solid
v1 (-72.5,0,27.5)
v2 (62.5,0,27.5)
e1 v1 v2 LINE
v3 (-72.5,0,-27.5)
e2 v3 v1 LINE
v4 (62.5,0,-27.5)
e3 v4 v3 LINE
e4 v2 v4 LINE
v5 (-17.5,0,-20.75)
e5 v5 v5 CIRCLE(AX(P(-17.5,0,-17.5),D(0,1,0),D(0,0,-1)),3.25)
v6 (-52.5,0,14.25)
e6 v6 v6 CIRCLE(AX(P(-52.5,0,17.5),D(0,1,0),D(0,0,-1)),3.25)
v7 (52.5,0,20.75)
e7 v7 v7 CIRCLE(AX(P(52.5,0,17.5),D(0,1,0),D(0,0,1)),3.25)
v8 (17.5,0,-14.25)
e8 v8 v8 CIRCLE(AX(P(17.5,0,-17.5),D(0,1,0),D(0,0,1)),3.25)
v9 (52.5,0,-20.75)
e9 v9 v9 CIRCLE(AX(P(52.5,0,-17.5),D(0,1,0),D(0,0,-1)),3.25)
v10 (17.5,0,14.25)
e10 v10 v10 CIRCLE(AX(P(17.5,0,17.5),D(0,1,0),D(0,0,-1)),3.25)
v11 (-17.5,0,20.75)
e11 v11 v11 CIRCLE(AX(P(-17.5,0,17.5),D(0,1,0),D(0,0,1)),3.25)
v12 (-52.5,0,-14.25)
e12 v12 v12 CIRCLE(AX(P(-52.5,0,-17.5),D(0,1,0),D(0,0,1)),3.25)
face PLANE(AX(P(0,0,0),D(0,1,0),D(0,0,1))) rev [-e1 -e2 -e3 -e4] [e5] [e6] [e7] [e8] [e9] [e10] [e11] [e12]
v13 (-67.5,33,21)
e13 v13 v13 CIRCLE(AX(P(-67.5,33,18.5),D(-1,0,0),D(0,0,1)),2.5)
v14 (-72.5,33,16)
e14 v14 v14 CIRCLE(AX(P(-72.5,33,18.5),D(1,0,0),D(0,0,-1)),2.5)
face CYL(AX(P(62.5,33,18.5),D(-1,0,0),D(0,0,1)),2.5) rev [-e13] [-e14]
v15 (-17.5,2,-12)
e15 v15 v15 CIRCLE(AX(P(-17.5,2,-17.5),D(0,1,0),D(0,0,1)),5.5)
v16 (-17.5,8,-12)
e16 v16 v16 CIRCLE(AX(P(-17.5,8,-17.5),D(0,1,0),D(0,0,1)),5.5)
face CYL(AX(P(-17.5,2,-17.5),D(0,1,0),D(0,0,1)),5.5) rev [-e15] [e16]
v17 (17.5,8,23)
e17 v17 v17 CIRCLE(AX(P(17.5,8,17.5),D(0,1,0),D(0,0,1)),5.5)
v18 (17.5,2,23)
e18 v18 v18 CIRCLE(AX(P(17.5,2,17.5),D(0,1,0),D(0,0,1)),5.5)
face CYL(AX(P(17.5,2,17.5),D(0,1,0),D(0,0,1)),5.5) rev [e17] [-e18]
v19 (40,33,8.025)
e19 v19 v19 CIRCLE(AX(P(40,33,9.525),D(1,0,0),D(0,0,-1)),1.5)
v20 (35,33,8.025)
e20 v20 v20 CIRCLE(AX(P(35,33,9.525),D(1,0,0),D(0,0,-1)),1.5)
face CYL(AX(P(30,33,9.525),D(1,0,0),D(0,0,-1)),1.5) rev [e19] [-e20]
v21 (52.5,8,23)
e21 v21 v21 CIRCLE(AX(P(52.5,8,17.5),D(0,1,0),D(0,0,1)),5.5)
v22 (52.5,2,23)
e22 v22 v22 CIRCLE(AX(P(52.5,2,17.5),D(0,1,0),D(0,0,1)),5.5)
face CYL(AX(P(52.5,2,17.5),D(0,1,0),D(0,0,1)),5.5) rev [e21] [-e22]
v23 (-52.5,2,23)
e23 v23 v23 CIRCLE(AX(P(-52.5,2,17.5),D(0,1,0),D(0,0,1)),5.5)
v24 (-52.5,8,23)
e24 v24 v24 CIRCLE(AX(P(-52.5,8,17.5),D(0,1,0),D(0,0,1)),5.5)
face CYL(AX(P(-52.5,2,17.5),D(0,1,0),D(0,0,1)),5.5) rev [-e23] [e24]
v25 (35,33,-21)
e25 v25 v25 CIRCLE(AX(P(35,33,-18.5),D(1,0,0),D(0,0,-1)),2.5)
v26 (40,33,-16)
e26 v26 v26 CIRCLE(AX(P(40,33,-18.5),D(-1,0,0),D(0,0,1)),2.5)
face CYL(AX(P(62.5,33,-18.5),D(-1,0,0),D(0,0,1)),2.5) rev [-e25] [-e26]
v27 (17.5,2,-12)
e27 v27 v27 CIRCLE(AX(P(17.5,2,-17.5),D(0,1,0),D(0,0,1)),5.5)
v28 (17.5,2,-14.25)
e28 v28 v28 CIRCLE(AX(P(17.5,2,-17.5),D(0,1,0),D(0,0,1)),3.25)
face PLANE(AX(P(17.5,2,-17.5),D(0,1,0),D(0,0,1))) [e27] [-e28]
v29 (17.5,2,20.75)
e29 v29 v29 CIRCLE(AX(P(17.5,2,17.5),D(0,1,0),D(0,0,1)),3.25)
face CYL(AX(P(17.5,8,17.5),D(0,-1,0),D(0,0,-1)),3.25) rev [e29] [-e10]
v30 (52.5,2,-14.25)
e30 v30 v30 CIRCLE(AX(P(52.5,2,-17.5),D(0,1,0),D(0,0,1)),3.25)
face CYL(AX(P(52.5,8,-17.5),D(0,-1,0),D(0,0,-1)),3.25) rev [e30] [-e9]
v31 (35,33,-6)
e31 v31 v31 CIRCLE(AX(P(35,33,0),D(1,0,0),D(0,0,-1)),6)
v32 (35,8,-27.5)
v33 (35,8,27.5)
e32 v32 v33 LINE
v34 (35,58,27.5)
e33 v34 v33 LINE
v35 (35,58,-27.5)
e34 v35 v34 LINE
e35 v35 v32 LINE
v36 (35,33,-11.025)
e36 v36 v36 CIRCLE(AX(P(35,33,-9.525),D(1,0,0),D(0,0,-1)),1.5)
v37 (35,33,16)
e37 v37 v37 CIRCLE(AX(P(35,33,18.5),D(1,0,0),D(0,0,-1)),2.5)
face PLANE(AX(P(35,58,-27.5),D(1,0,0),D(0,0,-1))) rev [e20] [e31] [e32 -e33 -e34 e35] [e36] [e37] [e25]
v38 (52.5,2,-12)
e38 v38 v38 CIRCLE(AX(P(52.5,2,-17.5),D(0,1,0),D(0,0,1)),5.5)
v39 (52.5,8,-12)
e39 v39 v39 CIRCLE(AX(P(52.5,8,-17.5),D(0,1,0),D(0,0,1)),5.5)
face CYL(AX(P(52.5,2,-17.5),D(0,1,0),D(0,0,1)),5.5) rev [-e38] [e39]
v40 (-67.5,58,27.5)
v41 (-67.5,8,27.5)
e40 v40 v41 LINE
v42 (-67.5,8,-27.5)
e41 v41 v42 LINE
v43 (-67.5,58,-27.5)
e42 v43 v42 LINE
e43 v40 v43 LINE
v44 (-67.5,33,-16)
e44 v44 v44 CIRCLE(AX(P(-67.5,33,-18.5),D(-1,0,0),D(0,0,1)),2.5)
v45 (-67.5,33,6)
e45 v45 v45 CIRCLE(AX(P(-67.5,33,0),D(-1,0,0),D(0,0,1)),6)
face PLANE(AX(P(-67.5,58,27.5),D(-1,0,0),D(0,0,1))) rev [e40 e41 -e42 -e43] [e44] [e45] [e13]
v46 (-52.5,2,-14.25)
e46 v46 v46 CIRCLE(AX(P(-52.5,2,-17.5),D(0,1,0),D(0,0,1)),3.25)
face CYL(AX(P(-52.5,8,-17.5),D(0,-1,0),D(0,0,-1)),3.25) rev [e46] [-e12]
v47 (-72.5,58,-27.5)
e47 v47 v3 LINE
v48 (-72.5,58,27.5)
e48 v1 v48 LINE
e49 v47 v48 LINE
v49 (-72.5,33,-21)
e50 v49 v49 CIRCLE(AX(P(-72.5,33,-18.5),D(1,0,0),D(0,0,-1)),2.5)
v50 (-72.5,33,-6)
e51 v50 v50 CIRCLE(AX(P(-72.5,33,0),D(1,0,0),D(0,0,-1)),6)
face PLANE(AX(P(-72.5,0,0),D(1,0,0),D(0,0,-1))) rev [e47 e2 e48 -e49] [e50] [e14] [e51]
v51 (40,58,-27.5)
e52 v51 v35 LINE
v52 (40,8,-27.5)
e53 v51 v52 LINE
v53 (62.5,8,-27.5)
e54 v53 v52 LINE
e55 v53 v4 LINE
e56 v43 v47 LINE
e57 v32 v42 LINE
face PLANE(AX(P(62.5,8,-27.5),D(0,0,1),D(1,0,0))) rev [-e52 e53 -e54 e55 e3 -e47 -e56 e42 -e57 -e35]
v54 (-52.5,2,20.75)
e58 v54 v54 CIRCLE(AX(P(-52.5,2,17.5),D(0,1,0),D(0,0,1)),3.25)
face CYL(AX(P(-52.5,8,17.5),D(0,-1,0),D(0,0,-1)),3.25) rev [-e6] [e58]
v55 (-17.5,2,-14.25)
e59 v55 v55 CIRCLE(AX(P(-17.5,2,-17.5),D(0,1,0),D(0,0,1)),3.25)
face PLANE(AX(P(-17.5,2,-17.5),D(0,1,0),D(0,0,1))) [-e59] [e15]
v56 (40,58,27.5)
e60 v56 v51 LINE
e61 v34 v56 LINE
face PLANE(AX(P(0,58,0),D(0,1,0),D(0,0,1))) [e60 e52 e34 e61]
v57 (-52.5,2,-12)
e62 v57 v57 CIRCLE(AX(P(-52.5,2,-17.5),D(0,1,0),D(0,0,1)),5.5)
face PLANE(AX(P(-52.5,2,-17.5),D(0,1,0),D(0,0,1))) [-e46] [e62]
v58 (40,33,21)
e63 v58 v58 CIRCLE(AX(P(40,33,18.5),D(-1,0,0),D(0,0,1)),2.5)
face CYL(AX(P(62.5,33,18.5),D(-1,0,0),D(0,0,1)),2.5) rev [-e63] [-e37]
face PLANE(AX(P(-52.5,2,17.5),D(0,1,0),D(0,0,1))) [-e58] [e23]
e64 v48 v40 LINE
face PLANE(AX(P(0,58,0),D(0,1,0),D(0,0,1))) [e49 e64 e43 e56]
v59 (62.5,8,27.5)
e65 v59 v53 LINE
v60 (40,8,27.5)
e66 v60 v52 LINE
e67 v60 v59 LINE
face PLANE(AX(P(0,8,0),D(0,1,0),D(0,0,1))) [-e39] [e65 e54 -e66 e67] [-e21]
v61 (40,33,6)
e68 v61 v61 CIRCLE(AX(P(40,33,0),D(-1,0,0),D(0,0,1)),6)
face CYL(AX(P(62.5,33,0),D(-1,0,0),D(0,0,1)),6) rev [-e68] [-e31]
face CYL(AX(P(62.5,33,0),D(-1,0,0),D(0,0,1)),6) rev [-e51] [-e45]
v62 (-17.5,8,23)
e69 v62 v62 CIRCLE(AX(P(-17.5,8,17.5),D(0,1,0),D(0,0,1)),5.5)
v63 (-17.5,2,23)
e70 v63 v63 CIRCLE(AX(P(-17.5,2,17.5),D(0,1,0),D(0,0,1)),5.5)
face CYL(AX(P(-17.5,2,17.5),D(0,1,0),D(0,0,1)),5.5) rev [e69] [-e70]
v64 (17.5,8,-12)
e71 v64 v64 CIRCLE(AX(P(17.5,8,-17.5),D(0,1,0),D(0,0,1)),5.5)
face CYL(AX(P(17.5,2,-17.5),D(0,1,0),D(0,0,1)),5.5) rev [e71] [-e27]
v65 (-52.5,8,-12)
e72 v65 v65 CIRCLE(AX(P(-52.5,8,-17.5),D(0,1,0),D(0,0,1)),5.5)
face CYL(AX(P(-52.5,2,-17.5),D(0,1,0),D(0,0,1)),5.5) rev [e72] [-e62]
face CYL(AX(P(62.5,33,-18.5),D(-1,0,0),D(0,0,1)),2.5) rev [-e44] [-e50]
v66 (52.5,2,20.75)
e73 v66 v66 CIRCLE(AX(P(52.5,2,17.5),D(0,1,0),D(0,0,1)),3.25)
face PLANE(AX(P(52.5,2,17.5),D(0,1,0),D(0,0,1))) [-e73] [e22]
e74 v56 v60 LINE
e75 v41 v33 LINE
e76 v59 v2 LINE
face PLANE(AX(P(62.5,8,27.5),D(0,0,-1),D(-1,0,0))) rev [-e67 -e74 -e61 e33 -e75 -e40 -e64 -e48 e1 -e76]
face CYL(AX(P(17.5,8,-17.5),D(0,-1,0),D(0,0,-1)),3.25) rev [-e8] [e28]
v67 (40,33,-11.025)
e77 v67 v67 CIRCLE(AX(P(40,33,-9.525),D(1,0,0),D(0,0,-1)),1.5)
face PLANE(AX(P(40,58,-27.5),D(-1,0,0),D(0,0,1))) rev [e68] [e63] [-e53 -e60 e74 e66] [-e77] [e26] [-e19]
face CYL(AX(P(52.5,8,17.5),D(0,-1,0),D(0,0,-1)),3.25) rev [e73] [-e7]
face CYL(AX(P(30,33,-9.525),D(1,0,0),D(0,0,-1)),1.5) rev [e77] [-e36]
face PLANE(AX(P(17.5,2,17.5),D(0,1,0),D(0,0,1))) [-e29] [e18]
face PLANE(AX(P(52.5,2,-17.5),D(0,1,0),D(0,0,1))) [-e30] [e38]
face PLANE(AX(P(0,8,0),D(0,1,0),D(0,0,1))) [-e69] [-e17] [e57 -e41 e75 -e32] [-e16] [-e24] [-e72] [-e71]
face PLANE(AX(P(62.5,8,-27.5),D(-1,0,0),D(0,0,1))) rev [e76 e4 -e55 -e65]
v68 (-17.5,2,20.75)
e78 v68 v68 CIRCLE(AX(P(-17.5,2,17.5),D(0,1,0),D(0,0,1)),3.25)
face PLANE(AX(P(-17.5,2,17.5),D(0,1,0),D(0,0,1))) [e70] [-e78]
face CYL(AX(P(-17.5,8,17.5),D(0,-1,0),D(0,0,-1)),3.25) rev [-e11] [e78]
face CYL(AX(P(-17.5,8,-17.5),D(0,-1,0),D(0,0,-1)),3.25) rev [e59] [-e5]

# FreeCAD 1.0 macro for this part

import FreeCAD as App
import Part
import Sketcher

doc = App.newDocument("Part")
body = doc.addObject("PartDesign::Body", "Body")

sketch1 = body.newObject("Sketcher::SketchObject", "Sketch")
sketch1.AttachmentSupport = (doc.getObject("XZ_Plane"), [""])
sketch1.MapMode = "FlatFace"
sketch1.addGeometry(Part.LineSegment(App.Vector(-62.5, -27.5, 0), App.Vector(-62.5, 27.5, 0)), False)
sketch1.addGeometry(Part.LineSegment(App.Vector(-62.5, 27.5, 0), App.Vector(62.5, 27.5, 0)), False)
sketch1.addGeometry(Part.LineSegment(App.Vector(62.5, 27.5, 0), App.Vector(62.5, -27.5, 0)), False)
sketch1.addGeometry(Part.LineSegment(App.Vector(62.5, -27.5, 0), App.Vector(-62.5, -27.5, 0)), False)
sketch1.addGeometry(Part.Circle(App.Vector(-52.5, 17.5, 0), App.Vector(0, 0, 1), 3.2), False)
sketch1.addGeometry(Part.Circle(App.Vector(-17.5, 17.5, 0), App.Vector(0, 0, 1), 3.2), False)
sketch1.addGeometry(Part.Circle(App.Vector(17.5, 17.5, 0), App.Vector(0, 0, 1), 3.2), False)
sketch1.addGeometry(Part.Circle(App.Vector(52.5, 17.5, 0), App.Vector(0, 0, 1), 3.2), False)
sketch1.addGeometry(Part.Circle(App.Vector(-52.5, -17.5, 0), App.Vector(0, 0, 1), 3.2), False)
sketch1.addGeometry(Part.Circle(App.Vector(-17.5, -17.5, 0), App.Vector(0, 0, 1), 3.2), False)
sketch1.addGeometry(Part.Circle(App.Vector(17.5, -17.5, 0), App.Vector(0, 0, 1), 3.2), False)
sketch1.addGeometry(Part.Circle(App.Vector(52.5, -17.5, 0), App.Vector(0, 0, 1), 3.2), False)
sketch1.addConstraint(Sketcher.Constraint("Coincident", 0, 2, 1, 1))
sketch1.addConstraint(Sketcher.Constraint("Coincident", 1, 2, 2, 1))
sketch1.addConstraint(Sketcher.Constraint("Coincident", 2, 2, 3, 1))
sketch1.addConstraint(Sketcher.Constraint("Coincident", 3, 2, 0, 1))
sketch1.addConstraint(Sketcher.Constraint("Vertical", 0))
sketch1.addConstraint(Sketcher.Constraint("Horizontal", 1))
sketch1.addConstraint(Sketcher.Constraint("Vertical", 2))
sketch1.addConstraint(Sketcher.Constraint("Horizontal", 3))
sketch1.addConstraint(Sketcher.Constraint("Equal", 4, 5))
sketch1.addConstraint(Sketcher.Constraint("Equal", 5, 6))
sketch1.addConstraint(Sketcher.Constraint("Equal", 6, 7))
sketch1.addConstraint(Sketcher.Constraint("Equal", 7, 8))
sketch1.addConstraint(Sketcher.Constraint("Equal", 8, 9))
sketch1.addConstraint(Sketcher.Constraint("Equal", 9, 10))
sketch1.addConstraint(Sketcher.Constraint("Equal", 10, 11))
sketch1.addConstraint(Sketcher.Constraint("Symmetric", 7, 3, 8, 3, -1, 1))
sketch1.addConstraint(Sketcher.Constraint("Symmetric", 6, 3, 9, 3, -1, 1))
sketch1.addConstraint(Sketcher.Constraint("Symmetric", 5, 3, 10, 3, -1, 1))
sketch1.addConstraint(Sketcher.Constraint("Symmetric", 4, 3, 11, 3, -1, 1))
sketch1.addConstraint(Sketcher.Constraint("Symmetric", 0, 2, 2, 2, -1, 1))
sketch1.addConstraint(Sketcher.Constraint("Symmetric", 5, 3, 6, 3, -2))
sketch1.addConstraint(Sketcher.Constraint("Symmetric", 4, 3, 7, 3, -2))
sketch1.addConstraint(Sketcher.Constraint("Horizontal", 4, 3, 5, 3))
sketch1.addConstraint(Sketcher.Constraint("Diameter", 4, 6.5))
sketch1.addConstraint(Sketcher.Constraint("DistanceX", 1, 1, 1, 2, 125.0))
sketch1.addConstraint(Sketcher.Constraint("DistanceY", 0, 1, 0, 2, 55.0))
sketch1.addConstraint(Sketcher.Constraint("DistanceX", 4, 3, 5, 3, 35.0))
sketch1.addConstraint(Sketcher.Constraint("DistanceX", 5, 3, 6, 3, 35.0))
sketch1.addConstraint(Sketcher.Constraint("DistanceY", 8, 3, 4, 3, 35.0))
pad1 = body.newObject("PartDesign::Pad", "Pad")
pad1.Profile = sketch1
pad1.Length = 8
pad1.Reversed = True

sketch2 = body.newObject("Sketcher::SketchObject", "Sketch001")
sketch2.AttachmentSupport = (doc.getObject("XZ_Plane"), [""])
sketch2.MapMode = "FlatFace"
sketch2.AttachmentOffset = App.Placement(App.Vector(0, 0, -8), App.Rotation())
sketch2.addGeometry(Part.Circle(App.Vector(-52, -18, 0), App.Vector(0, 0, 1), 6), False)
sketch2.addGeometry(Part.Circle(App.Vector(-18, -18, 0), App.Vector(0, 0, 1), 6), False)
sketch2.addGeometry(Part.Circle(App.Vector(18, -18, 0), App.Vector(0, 0, 1), 6), False)
sketch2.addGeometry(Part.Circle(App.Vector(52, -18, 0), App.Vector(0, 0, 1), 6), False)
sketch2.addGeometry(Part.Circle(App.Vector(52, 18, 0), App.Vector(0, 0, 1), 6), False)
sketch2.addGeometry(Part.Circle(App.Vector(18, 18, 0), App.Vector(0, 0, 1), 6), False)
sketch2.addGeometry(Part.Circle(App.Vector(-18, 18, 0), App.Vector(0, 0, 1), 6), False)
sketch2.addGeometry(Part.Circle(App.Vector(-52, 18, 0), App.Vector(0, 0, 1), 6), False)
sketch2.addConstraint(Sketcher.Constraint("Equal", 0, 1))
sketch2.addConstraint(Sketcher.Constraint("Equal", 1, 2))
sketch2.addConstraint(Sketcher.Constraint("Equal", 2, 3))
sketch2.addConstraint(Sketcher.Constraint("Equal", 3, 4))
sketch2.addConstraint(Sketcher.Constraint("Equal", 4, 5))
sketch2.addConstraint(Sketcher.Constraint("Equal", 5, 6))
sketch2.addConstraint(Sketcher.Constraint("Equal", 6, 7))
sketch2.addConstraint(Sketcher.Constraint("Symmetric", 0, 3, 4, 3, -1, 1))
sketch2.addConstraint(Sketcher.Constraint("Symmetric", 1, 3, 5, 3, -1, 1))
sketch2.addConstraint(Sketcher.Constraint("Symmetric", 2, 3, 6, 3, -1, 1))
sketch2.addConstraint(Sketcher.Constraint("Symmetric", 3, 3, 7, 3, -1, 1))
sketch2.addConstraint(Sketcher.Constraint("Symmetric", 1, 3, 2, 3, -2))
sketch2.addConstraint(Sketcher.Constraint("Symmetric", 0, 3, 3, 3, -2))
sketch2.addConstraint(Sketcher.Constraint("Horizontal", 0, 3, 1, 3))
sketch2.addConstraint(Sketcher.Constraint("Diameter", 0, 11.0))
sketch2.addConstraint(Sketcher.Constraint("DistanceX", 0, 3, 1, 3, 35.0))
sketch2.addConstraint(Sketcher.Constraint("DistanceX", 1, 3, 2, 3, 35.0))
sketch2.addConstraint(Sketcher.Constraint("DistanceY", 3, 3, 4, 3, 35.0))
pocket1 = body.newObject("PartDesign::Pocket", "Pocket")
pocket1.Profile = sketch2
pocket1.Length = 6
pocket1.Reversed = True

sketch3 = body.newObject("Sketcher::SketchObject", "Sketch002")
sketch3.AttachmentSupport = (doc.getObject("YZ_Plane"), [""])
sketch3.MapMode = "FlatFace"
sketch3.AttachmentOffset = App.Placement(App.Vector(0, 0, -62.5), App.Rotation())
sketch3.addGeometry(Part.LineSegment(App.Vector(8, -28, 0), App.Vector(0, -28, 0)), False)
sketch3.addGeometry(Part.LineSegment(App.Vector(0, -28, 0), App.Vector(0, 28, 0)), False)
sketch3.addGeometry(Part.LineSegment(App.Vector(0, 28, 0), App.Vector(8, 28, 0)), False)
sketch3.addGeometry(Part.LineSegment(App.Vector(8, 28, 0), App.Vector(8, -28, 0)), False)
sketch3.addConstraint(Sketcher.Constraint("Coincident", 0, 2, 1, 1))
sketch3.addConstraint(Sketcher.Constraint("Coincident", 1, 2, 2, 1))
sketch3.addConstraint(Sketcher.Constraint("Coincident", 2, 2, 3, 1))
sketch3.addConstraint(Sketcher.Constraint("Coincident", 3, 2, 0, 1))
sketch3.addConstraint(Sketcher.Constraint("Horizontal", 0))
sketch3.addConstraint(Sketcher.Constraint("Vertical", 1))
sketch3.addConstraint(Sketcher.Constraint("Horizontal", 2))
sketch3.addConstraint(Sketcher.Constraint("Vertical", 3))
sketch3.addConstraint(Sketcher.Constraint("Symmetric", 0, 2, 1, 2, -1, 1))
sketch3.addConstraint(Sketcher.Constraint("DistanceX", 0, 2, 0, 1, 8.0))
sketch3.addConstraint(Sketcher.Constraint("DistanceY", 1, 1, 1, 2, 55.0))
pad2 = body.newObject("PartDesign::Pad", "Pad001")
pad2.Profile = sketch3
pad2.Length = 10
pad2.Reversed = True

sketch4 = body.newObject("Sketcher::SketchObject", "Sketch003")
sketch4.AttachmentSupport = (doc.getObject("XZ_Plane"), [""])
sketch4.MapMode = "FlatFace"
sketch4.AttachmentOffset = App.Placement(App.Vector(0, 0, -8), App.Rotation())
sketch4.addGeometry(Part.LineSegment(App.Vector(-72, -28, 0), App.Vector(-72, 28, 0)), False)
sketch4.addGeometry(Part.LineSegment(App.Vector(-72, 28, 0), App.Vector(-68, 28, 0)), False)
sketch4.addGeometry(Part.LineSegment(App.Vector(-68, 28, 0), App.Vector(-68, -28, 0)), False)
sketch4.addGeometry(Part.LineSegment(App.Vector(-68, -28, 0), App.Vector(-72, -28, 0)), False)
sketch4.addGeometry(Part.LineSegment(App.Vector(35, -28, 0), App.Vector(35, 28, 0)), False)
sketch4.addGeometry(Part.LineSegment(App.Vector(35, 28, 0), App.Vector(40, 28, 0)), False)
sketch4.addGeometry(Part.LineSegment(App.Vector(40, 28, 0), App.Vector(40, -28, 0)), False)
sketch4.addGeometry(Part.LineSegment(App.Vector(40, -28, 0), App.Vector(35, -28, 0)), False)
sketch4.addConstraint(Sketcher.Constraint("Coincident", 0, 2, 1, 1))
sketch4.addConstraint(Sketcher.Constraint("Coincident", 1, 2, 2, 1))
sketch4.addConstraint(Sketcher.Constraint("Coincident", 2, 2, 3, 1))
sketch4.addConstraint(Sketcher.Constraint("Coincident", 3, 2, 0, 1))
sketch4.addConstraint(Sketcher.Constraint("Coincident", 4, 2, 5, 1))
sketch4.addConstraint(Sketcher.Constraint("Coincident", 5, 2, 6, 1))
sketch4.addConstraint(Sketcher.Constraint("Coincident", 6, 2, 7, 1))
sketch4.addConstraint(Sketcher.Constraint("Coincident", 7, 2, 4, 1))
sketch4.addConstraint(Sketcher.Constraint("Vertical", 0))
sketch4.addConstraint(Sketcher.Constraint("Horizontal", 1))
sketch4.addConstraint(Sketcher.Constraint("Vertical", 2))
sketch4.addConstraint(Sketcher.Constraint("Horizontal", 3))
sketch4.addConstraint(Sketcher.Constraint("Vertical", 4))
sketch4.addConstraint(Sketcher.Constraint("Horizontal", 5))
sketch4.addConstraint(Sketcher.Constraint("Vertical", 6))
sketch4.addConstraint(Sketcher.Constraint("Horizontal", 7))
sketch4.addConstraint(Sketcher.Constraint("Horizontal", 1, 2, 4, 2))
sketch4.addConstraint(Sketcher.Constraint("Horizontal", 3, 2, 6, 2))
sketch4.addConstraint(Sketcher.Constraint("Equal", 3, 5))
sketch4.addConstraint(Sketcher.Constraint("DistanceX", 1, 1, 1, 2, 5.0))
sketch4.addConstraint(Sketcher.Constraint("DistanceY", 0, 1, 0, 2, 55.0))
sketch4.addConstraint(Sketcher.Constraint("DistanceX", -1, 1, 4, 2, 35.0))
sketch4.addConstraint(Sketcher.Constraint("DistanceX", 0, 2, -1, 1, 72.5))
sketch4.addConstraint(Sketcher.Constraint("DistanceY", -1, 1, 0, 2, 27.5))
pad3 = body.newObject("PartDesign::Pad", "Pad002")
pad3.Profile = sketch4
pad3.Length = 50
pad3.Reversed = True

sketch5 = body.newObject("Sketcher::SketchObject", "Sketch004")
sketch5.AttachmentSupport = (doc.getObject("YZ_Plane"), [""])
sketch5.MapMode = "FlatFace"
sketch5.AttachmentOffset = App.Placement(App.Vector(0, 0, -72.5), App.Rotation())
sketch5.addGeometry(Part.Circle(App.Vector(33, 0, 0), App.Vector(0, 0, 1), 6), False)
sketch5.addGeometry(Part.Circle(App.Vector(33, -18.5, 0), App.Vector(0, 0, 1), 2.5), False)
sketch5.addGeometry(Part.Circle(App.Vector(33, 18.5, 0), App.Vector(0, 0, 1), 2.5), False)
sketch5.addConstraint(Sketcher.Constraint("Equal", 1, 2))
sketch5.addConstraint(Sketcher.Constraint("Symmetric", 1, 3, 2, 3, -1))
sketch5.addConstraint(Sketcher.Constraint("PointOnObject", 0, 3, -1))
sketch5.addConstraint(Sketcher.Constraint("Vertical", 0, 3, 1, 3))
sketch5.addConstraint(Sketcher.Constraint("Diameter", 0, 12.0))
sketch5.addConstraint(Sketcher.Constraint("Diameter", 1, 5.0))
sketch5.addConstraint(Sketcher.Constraint("DistanceX", -1, 1, 0, 3, 33.0))
sketch5.addConstraint(Sketcher.Constraint("DistanceY", 1, 3, 2, 3, 37.0))
pocket2 = body.newObject("PartDesign::Pocket", "Pocket001")
pocket2.Profile = sketch5
pocket2.Type = "ThroughAll"
pocket2.Midplane = True

sketch6 = body.newObject("Sketcher::SketchObject", "Sketch005")
sketch6.AttachmentSupport = (doc.getObject("YZ_Plane"), [""])
sketch6.MapMode = "FlatFace"
sketch6.AttachmentOffset = App.Placement(App.Vector(0, 0, 40), App.Rotation())
sketch6.addGeometry(Part.Circle(App.Vector(33, -9.5, 0), App.Vector(0, 0, 1), 1.5), False)
sketch6.addGeometry(Part.Circle(App.Vector(33, 9.5, 0), App.Vector(0, 0, 1), 1.5), False)
sketch6.addConstraint(Sketcher.Constraint("Equal", 0, 1))
sketch6.addConstraint(Sketcher.Constraint("Symmetric", 0, 3, 1, 3, -1))
sketch6.addConstraint(Sketcher.Constraint("Diameter", 0, 3.0))
sketch6.addConstraint(Sketcher.Constraint("DistanceX", -1, 1, 0, 3, 33.0))
sketch6.addConstraint(Sketcher.Constraint("DistanceY", 0, 3, 1, 3, 19.05))
pocket3 = body.newObject("PartDesign::Pocket", "Pocket002")
pocket3.Profile = sketch6
pocket3.Length = 10

doc.recompute()
